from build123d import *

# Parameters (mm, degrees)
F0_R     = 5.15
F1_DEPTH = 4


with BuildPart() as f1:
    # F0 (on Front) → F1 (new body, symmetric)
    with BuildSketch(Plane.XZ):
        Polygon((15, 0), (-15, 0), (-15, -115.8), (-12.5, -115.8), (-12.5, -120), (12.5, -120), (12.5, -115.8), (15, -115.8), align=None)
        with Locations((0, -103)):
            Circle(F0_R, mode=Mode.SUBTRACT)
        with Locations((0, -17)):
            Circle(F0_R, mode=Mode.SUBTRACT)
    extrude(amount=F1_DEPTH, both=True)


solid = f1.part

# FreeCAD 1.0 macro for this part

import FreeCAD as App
import Part
import Sketcher

doc = App.newDocument("Part")
body = doc.addObject("PartDesign::Body", "Body")

sketch1 = body.newObject("Sketcher::SketchObject", "Sketch")
sketch1.AttachmentSupport = (doc.getObject("XZ_Plane"), [""])
sketch1.MapMode = "FlatFace"
sketch1.addGeometry([
    Part.LineSegment(App.Vector(15, 0, 0), App.Vector(-15, 0, 0)),
    Part.LineSegment(App.Vector(-15, 0, 0), App.Vector(-15, -115.8, 0)),
    Part.LineSegment(App.Vector(-15, -115.8, 0), App.Vector(-12.5, -115.8, 0)),
    Part.LineSegment(App.Vector(-12.5, -115.8, 0), App.Vector(-12.5, -120, 0)),
    Part.LineSegment(App.Vector(-12.5, -120, 0), App.Vector(12.5, -120, 0)),
    Part.LineSegment(App.Vector(12.5, -120, 0), App.Vector(12.5, -115.8, 0)),
    Part.LineSegment(App.Vector(12.5, -115.8, 0), App.Vector(15, -115.8, 0)),
    Part.LineSegment(App.Vector(15, -115.8, 0), App.Vector(15, 0, 0)),
    Part.Circle(App.Vector(0, -103, 0), App.Vector(0, 0, 1), 5.2),
    Part.Circle(App.Vector(0, -17, 0), App.Vector(0, 0, 1), 5.2),
], False)
sketch1.addConstraint([
    Sketcher.Constraint("Coincident", 0, 2, 1, 1),
    Sketcher.Constraint("Coincident", 1, 2, 2, 1),
    Sketcher.Constraint("Coincident", 2, 2, 3, 1),
    Sketcher.Constraint("Coincident", 3, 2, 4, 1),
    Sketcher.Constraint("Coincident", 4, 2, 5, 1),
    Sketcher.Constraint("Coincident", 5, 2, 6, 1),
    Sketcher.Constraint("Coincident", 6, 2, 7, 1),
    Sketcher.Constraint("Coincident", 7, 2, 0, 1),
    Sketcher.Constraint("Horizontal", 0),
    Sketcher.Constraint("Vertical", 1),
    Sketcher.Constraint("Horizontal", 2),
    Sketcher.Constraint("Vertical", 3),
    Sketcher.Constraint("Horizontal", 4),
    Sketcher.Constraint("Vertical", 5),
    Sketcher.Constraint("Horizontal", 6),
    Sketcher.Constraint("Vertical", 7),
    Sketcher.Constraint("Equal", 8, 9),
    Sketcher.Constraint("Symmetric", 0, 2, 7, 2, -1, 1),
    Sketcher.Constraint("Symmetric", 2, 2, 5, 2, -2),
    Sketcher.Constraint("PointOnObject", 8, 3, -2),
    Sketcher.Constraint("PointOnObject", 9, 3, -2),
    Sketcher.Constraint("Diameter", 8, 10.3),
    Sketcher.Constraint("DistanceX", 0, 2, 0, 1, 30.0),
    Sketcher.Constraint("DistanceX", 4, 1, 4, 2, 25.0),
    Sketcher.Constraint("DistanceY", 1, 2, 1, 1, 115.8),
    Sketcher.Constraint("DistanceY", 3, 2, 3, 1, 4.2),
    Sketcher.Constraint("DistanceY", 8, 3, -1, 1, 103.0),
    Sketcher.Constraint("DistanceY", 9, 3, -1, 1, 17.0),
])
pad1 = body.newObject("PartDesign::Pad", "Pad")
pad1.Profile = sketch1
pad1.Length = 8
pad1.Midplane = True

doc.recompute()
